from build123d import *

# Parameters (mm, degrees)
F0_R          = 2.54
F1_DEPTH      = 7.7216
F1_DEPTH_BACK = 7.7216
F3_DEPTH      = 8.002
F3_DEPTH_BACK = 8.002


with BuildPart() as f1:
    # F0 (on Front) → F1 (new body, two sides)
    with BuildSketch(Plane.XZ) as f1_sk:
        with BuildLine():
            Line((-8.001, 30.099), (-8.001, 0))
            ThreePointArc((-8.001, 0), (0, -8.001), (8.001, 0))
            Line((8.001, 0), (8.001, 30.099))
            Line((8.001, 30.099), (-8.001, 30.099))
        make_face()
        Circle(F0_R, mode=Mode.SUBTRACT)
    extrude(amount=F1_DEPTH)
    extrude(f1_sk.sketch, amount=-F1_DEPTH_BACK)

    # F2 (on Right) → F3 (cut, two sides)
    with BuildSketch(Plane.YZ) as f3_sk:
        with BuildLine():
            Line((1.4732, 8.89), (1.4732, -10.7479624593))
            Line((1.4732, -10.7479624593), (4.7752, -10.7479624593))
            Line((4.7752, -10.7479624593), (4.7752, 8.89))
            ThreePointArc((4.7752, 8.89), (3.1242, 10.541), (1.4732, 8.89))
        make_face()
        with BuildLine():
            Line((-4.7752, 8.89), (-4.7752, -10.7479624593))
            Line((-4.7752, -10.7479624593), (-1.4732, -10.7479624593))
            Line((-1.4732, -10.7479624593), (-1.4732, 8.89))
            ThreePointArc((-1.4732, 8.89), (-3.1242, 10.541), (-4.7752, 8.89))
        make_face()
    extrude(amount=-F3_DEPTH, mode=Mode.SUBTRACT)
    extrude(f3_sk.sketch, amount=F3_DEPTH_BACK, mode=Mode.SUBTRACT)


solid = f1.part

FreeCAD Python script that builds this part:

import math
import FreeCAD as App
import Part
import Sketcher
from FreeCAD import Vector
Q = App.Units.Quantity

doc = App.newDocument("Part")
body = doc.addObject("PartDesign::Body", "Body")

sketch1 = doc.addObject("Sketcher::SketchObject", "Sketch")
body.addObject(sketch1)
sketch1.AttachmentSupport = (doc.XZ_Plane, [""])
sketch1.MapMode = "FlatFace"
sketch1.addGeometry([
    Part.LineSegment(Vector(-8, 30.1, 0), Vector(-8, 0, 0)),
    Part.ArcOfCircle(Part.Circle(Vector(0, 0, 0), Vector(0, 0, 1), 8), math.radians(180), math.radians(360)),
    Part.LineSegment(Vector(8, 0, 0), Vector(8, 30.1, 0)),
    Part.LineSegment(Vector(8, 30.1, 0), Vector(-8, 30.1, 0)),
    Part.Circle(Vector(0, 0, 0), Vector(0, 0, 1), 2.5),
], False)
sketch1.addConstraint([
    Sketcher.Constraint("Tangent", 0, 2, 1, 1),
    Sketcher.Constraint("Tangent", 1, 2, 2, 1),
    Sketcher.Constraint("Coincident", 2, 2, 3, 1),
    Sketcher.Constraint("Coincident", 3, 2, 0, 1),
    Sketcher.Constraint("Vertical", 0),
    Sketcher.Constraint("Vertical", 2),
    Sketcher.Constraint("Horizontal", 3),
    Sketcher.Constraint("Coincident", 1, 3, -1, 1),
    Sketcher.Constraint("Coincident", 4, 3, -1, 1),
    Sketcher.Constraint("Diameter", 4, Q("0.2 in")),
    Sketcher.Constraint("Radius", 1, Q("0.315 in")),
    Sketcher.Constraint("DistanceY", 0, 2, 0, 1, Q("1.185 in")),
])
pad1 = doc.addObject("PartDesign::Pad", "Pad")
body.addObject(pad1)
pad1.Profile = sketch1
pad1.Type = "TwoLengths"
pad1.Length = Q("0.304 in")
pad1.Length2 = Q("0.304 in")

sketch2 = doc.addObject("Sketcher::SketchObject", "Sketch001")
body.addObject(sketch2)
sketch2.AttachmentSupport = (doc.YZ_Plane, [""])
sketch2.MapMode = "FlatFace"
sketch2.addGeometry([
    Part.LineSegment(Vector(1.5, 8.9, 0), Vector(1.5, -10.7, 0)),
    Part.LineSegment(Vector(1.5, -10.7, 0), Vector(4.8, -10.7, 0)),
    Part.LineSegment(Vector(4.8, -10.7, 0), Vector(4.8, 8.9, 0)),
    Part.ArcOfCircle(Part.Circle(Vector(3.1, 8.9, 0), Vector(0, 0, 1), 1.7), math.radians(0), math.radians(180)),
    Part.LineSegment(Vector(-4.8, 8.9, 0), Vector(-4.8, -10.7, 0)),
    Part.LineSegment(Vector(-4.8, -10.7, 0), Vector(-1.5, -10.7, 0)),
    Part.LineSegment(Vector(-1.5, -10.7, 0), Vector(-1.5, 8.9, 0)),
    Part.ArcOfCircle(Part.Circle(Vector(-3.1, 8.9, 0), Vector(0, 0, 1), 1.7), math.radians(0), math.radians(180)),
], False)
sketch2.addConstraint([
    Sketcher.Constraint("Coincident", 0, 2, 1, 1),
    Sketcher.Constraint("Coincident", 1, 2, 2, 1),
    Sketcher.Constraint("Tangent", 2, 2, 3, 1),
    Sketcher.Constraint("Tangent", 3, 2, 0, 1),
    Sketcher.Constraint("Coincident", 4, 2, 5, 1),
    Sketcher.Constraint("Coincident", 5, 2, 6, 1),
    Sketcher.Constraint("Tangent", 6, 2, 7, 1),
    Sketcher.Constraint("Tangent", 7, 2, 4, 1),
    Sketcher.Constraint("Vertical", 0),
    Sketcher.Constraint("Horizontal", 1),
    Sketcher.Constraint("Vertical", 2),
    Sketcher.Constraint("Vertical", 4),
    Sketcher.Constraint("Horizontal", 5),
    Sketcher.Constraint("Vertical", 6),
    Sketcher.Constraint("Equal", 3, 7),
    Sketcher.Constraint("Symmetric", 3, 3, 7, 3, -2),
    Sketcher.Constraint("Horizontal", 1, 2, 4, 2),
    Sketcher.Constraint("Radius", 3, Q("0.065 in")),
    Sketcher.Constraint("DistanceY", -1, 1, 3, 3, Q("0.35 in")),
    Sketcher.Constraint("DistanceX", -1, 1, 3, 3, Q("0.123 in")),
    Sketcher.Constraint("DistanceY", 0, 2, 0, 1, 19.637962),
])
pocket1 = doc.addObject("PartDesign::Pocket", "Pocket")
body.addObject(pocket1)
pocket1.Profile = sketch2
pocket1.Type = "ThroughAll"
pocket1.Midplane = True

doc.recompute()
